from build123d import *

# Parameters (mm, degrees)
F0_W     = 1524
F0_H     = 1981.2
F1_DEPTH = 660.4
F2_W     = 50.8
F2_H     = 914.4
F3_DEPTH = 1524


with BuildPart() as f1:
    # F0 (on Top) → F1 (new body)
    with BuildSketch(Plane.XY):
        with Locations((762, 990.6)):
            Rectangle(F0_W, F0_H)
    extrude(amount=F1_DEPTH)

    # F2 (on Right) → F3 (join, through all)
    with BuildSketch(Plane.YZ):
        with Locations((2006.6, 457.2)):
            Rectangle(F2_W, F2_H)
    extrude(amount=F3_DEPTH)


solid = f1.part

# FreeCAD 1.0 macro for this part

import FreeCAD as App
import Part
import Sketcher

V = App.Vector
Q = App.Units.Quantity


def add_polygon(sketch, points):
    """Adds a closed chain of lines whose ends are joined by coincident constraints."""
    first, n = sketch.GeometryCount, len(points)
    for a, b in zip(points, points[1:] + points[:1]):
        sketch.addGeometry(Part.LineSegment(App.Vector(*a, 0), App.Vector(*b, 0)), False)
    for i in range(n):
        sketch.addConstraint(Sketcher.Constraint("Coincident", first + i, 2, first + (i + 1) % n, 1))

doc = App.newDocument("Part")
body = doc.addObject("PartDesign::Body", "Body")

sketch1 = doc.addObject("Sketcher::SketchObject", "Sketch")
body.addObject(sketch1)
sketch1.AttachmentSupport = (doc.XY_Plane, [""])
sketch1.MapMode = "FlatFace"
add_polygon(sketch1, [(0, 1981), (0, 0), (1524, 0), (1524, 1981)])
sketch1.addConstraint([
    Sketcher.Constraint("Vertical", 0),
    Sketcher.Constraint("Horizontal", 1),
    Sketcher.Constraint("Vertical", 2),
    Sketcher.Constraint("Horizontal", 3),
    Sketcher.Constraint("Coincident", 0, 2, -1, 1),
    Sketcher.Constraint("DistanceX", 1, 1, 1, 2, Q("60 in")),
    Sketcher.Constraint("DistanceY", 0, 2, 0, 1, Q("78 in")),
])
pad1 = doc.addObject("PartDesign::Pad", "Pad")
body.addObject(pad1)
pad1.Profile = sketch1
pad1.Length = Q("26 in")

sketch2 = doc.addObject("Sketcher::SketchObject", "Sketch001")
body.addObject(sketch2)
sketch2.AttachmentSupport = (doc.YZ_Plane, [""])
sketch2.MapMode = "FlatFace"
add_polygon(sketch2, [(1981, 914), (1981, 0), (2032, 0), (2032, 914)])
sketch2.addConstraint([
    Sketcher.Constraint("Vertical", 0),
    Sketcher.Constraint("Horizontal", 1),
    Sketcher.Constraint("Vertical", 2),
    Sketcher.Constraint("Horizontal", 3),
    Sketcher.Constraint("PointOnObject", 0, 2, -1),
    Sketcher.Constraint("DistanceX", 1, 1, 1, 2, Q("2 in")),
    Sketcher.Constraint("DistanceY", 0, 2, 0, 1, Q("36 in")),
    Sketcher.Constraint("DistanceX", -1, 1, 0, 2, Q("78 in")),
])
pad2 = doc.addObject("PartDesign::Pad", "Pad001")
body.addObject(pad2)
pad2.Profile = sketch2
pad2.Length = Q("60 in")

doc.recompute()
